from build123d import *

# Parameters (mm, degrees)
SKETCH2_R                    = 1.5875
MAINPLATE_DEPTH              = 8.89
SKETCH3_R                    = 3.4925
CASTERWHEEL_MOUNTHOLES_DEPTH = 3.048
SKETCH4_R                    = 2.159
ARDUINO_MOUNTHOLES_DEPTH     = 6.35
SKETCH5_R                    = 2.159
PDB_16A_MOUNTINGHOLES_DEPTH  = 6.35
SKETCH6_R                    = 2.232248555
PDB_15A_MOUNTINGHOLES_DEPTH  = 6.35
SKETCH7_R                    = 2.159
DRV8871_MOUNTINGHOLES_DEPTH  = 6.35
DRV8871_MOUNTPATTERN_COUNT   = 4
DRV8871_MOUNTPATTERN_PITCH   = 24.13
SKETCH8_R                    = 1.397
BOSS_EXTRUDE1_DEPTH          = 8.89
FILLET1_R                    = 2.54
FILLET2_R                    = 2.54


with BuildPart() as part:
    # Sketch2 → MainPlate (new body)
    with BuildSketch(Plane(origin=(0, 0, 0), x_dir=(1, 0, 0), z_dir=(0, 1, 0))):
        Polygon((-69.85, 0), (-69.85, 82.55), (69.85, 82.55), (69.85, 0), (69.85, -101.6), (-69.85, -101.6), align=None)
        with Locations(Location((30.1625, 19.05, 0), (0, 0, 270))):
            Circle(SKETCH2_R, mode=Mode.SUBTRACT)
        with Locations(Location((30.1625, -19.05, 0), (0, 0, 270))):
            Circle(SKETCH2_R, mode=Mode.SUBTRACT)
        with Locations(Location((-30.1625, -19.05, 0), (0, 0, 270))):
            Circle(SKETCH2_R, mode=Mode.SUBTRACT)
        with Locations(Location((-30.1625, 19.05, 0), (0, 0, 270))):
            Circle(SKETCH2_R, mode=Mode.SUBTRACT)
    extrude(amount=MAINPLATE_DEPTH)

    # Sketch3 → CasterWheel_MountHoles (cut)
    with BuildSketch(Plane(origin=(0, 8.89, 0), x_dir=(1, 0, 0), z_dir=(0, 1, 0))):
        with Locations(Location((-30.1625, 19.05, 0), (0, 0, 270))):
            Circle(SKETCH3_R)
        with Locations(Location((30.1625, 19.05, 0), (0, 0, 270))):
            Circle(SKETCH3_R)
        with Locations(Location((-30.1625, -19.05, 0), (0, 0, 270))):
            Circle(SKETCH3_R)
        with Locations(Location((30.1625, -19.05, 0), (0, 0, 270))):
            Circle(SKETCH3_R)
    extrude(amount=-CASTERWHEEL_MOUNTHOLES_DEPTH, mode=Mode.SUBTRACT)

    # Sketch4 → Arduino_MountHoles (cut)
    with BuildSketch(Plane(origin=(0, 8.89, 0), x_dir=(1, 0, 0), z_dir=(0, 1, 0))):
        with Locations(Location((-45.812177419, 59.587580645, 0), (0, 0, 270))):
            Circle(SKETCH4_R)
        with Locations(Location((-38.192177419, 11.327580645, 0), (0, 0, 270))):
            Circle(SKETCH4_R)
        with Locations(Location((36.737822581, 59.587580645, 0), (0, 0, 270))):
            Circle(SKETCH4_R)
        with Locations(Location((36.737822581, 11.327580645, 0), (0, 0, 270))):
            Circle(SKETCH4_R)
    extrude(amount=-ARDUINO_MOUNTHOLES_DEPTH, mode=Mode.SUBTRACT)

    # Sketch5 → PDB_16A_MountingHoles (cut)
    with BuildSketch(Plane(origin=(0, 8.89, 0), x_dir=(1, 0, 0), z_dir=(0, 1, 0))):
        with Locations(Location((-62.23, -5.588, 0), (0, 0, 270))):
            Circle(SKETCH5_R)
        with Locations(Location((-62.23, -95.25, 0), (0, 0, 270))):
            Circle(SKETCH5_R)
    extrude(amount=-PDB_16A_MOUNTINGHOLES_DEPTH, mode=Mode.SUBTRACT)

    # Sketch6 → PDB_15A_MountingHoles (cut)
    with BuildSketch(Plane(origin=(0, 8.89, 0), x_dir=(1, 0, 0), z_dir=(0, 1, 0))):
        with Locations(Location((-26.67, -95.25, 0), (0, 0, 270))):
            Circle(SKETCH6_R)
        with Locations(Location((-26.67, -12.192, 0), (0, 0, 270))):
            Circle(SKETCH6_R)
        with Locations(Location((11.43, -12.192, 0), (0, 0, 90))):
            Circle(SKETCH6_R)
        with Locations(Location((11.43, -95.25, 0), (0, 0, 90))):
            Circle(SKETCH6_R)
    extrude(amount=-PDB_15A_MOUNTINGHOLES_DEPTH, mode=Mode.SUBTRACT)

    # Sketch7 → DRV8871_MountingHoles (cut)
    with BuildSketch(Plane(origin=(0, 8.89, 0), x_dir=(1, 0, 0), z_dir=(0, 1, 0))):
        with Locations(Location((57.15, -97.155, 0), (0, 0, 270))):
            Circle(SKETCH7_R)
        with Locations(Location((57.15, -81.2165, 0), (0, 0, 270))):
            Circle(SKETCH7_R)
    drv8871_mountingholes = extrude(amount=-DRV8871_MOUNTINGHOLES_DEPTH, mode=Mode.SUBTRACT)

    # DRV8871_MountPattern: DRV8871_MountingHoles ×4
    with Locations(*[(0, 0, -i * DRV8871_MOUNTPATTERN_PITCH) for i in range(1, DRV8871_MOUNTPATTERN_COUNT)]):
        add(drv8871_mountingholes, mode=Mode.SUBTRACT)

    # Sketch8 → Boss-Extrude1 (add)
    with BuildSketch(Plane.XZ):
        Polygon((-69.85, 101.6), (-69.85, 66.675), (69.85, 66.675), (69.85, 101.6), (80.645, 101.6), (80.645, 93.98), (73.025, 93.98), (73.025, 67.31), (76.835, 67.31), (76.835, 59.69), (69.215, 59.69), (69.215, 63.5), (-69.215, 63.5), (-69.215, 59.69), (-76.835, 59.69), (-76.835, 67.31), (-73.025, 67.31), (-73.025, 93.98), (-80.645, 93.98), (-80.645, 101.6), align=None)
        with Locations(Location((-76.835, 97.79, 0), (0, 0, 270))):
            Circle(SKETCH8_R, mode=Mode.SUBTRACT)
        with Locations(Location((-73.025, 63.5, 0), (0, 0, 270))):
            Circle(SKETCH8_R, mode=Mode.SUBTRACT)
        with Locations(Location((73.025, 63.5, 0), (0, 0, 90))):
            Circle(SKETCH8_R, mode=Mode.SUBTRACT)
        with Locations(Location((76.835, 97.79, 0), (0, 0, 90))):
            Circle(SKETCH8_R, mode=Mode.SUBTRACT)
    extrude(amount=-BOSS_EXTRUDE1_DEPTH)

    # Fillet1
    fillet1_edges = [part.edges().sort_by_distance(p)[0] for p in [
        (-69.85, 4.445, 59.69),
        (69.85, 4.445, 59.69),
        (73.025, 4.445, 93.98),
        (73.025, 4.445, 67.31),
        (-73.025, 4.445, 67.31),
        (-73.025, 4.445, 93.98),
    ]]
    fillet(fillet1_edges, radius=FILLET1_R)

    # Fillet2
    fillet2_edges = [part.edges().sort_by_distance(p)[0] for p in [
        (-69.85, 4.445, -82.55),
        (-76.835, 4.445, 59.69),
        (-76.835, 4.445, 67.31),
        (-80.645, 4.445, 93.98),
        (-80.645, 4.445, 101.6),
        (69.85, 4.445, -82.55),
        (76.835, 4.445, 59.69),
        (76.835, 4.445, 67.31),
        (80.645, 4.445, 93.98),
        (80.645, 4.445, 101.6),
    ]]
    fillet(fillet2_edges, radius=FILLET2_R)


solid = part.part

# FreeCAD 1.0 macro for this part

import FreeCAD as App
import Part
import Sketcher
from FreeCAD import Vector
Q = App.Units.Quantity


def edges_at(feature, points):
    """Names of the edges that pass closest to the given points."""
    edges = feature.Shape.Edges
    near = lambda p: min(range(len(edges)), key=lambda i: edges[i].distToShape(Part.Vertex(*p))[0])
    return sorted({f"Edge{near(p) + 1}" for p in points})


def add_polygon(sketch, points):
    """Adds a closed chain of lines whose ends are joined by coincident constraints."""
    first, n = sketch.GeometryCount, len(points)
    for a, b in zip(points, points[1:] + points[:1]):
        sketch.addGeometry(Part.LineSegment(App.Vector(*a, 0), App.Vector(*b, 0)), False)
    for i in range(n):
        sketch.addConstraint(Sketcher.Constraint("Coincident", first + i, 2, first + (i + 1) % n, 1))

doc = App.newDocument("Part")
params = doc.addObject("Spreadsheet::Sheet", "Params")
for row, (alias, value) in enumerate([
    ("sketch1_diameter", "0.125 in"),
    ("sketch1_width", "5.5 in"),
    ("sketch1_height", "7.25 in"),
    ("pad1_length", "0.35 in"),
    ("sketch2_diameter", "0.275 in"),
    ("pocket1_length", "0.12 in"),
    ("sketch3_diameter", "0.17 in"),
    ("pocket2_length", "0.25 in"),
    ("sketch4_diameter", "0.17 in"),
    ("pocket3_length", "0.25 in"),
    ("pocket4_length", "0.25 in"),
    ("sketch6_diameter", "0.17 in"),
    ("pocket5_length", "0.25 in"),
    ("linearpattern_pitch", "0.95 in"),
    ("sketch7_diameter", "0.11 in"),
    ("sketch7_width", "0.3 in"),
    ("sketch7_width2", "5.5 in"),
    ("sketch7_width3", "0.15 in"),
    ("sketch7_width4", "5.45 in"),
    ("pad2_length", "0.35 in"),
    ("fillet_radius", "0.1 in"),
    ("fillet2_radius", "0.1 in"),
], start=1):
    params.set(f"A{row}", alias)
    params.set(f"B{row}", "=" + value)
    params.setAlias(f"B{row}", alias)

body = doc.addObject("PartDesign::Body", "Body")

sketch1 = doc.addObject("Sketcher::SketchObject", "Sketch")
body.addObject(sketch1)
sketch1.AttachmentSupport = (doc.XZ_Plane, [""])
sketch1.MapMode = "FlatFace"
add_polygon(sketch1, [(-69.8, -82.5), (-69.8, 101.6), (69.8, 101.6), (69.8, -82.5)])
sketch1.addGeometry(Part.Circle(Vector(30.2, 19.1, 0), Vector(0, 0, 1), 1.6), False)
sketch1.addGeometry(Part.Circle(Vector(-30.2, 19.1, 0), Vector(0, 0, 1), 1.6), False)
sketch1.addGeometry(Part.Circle(Vector(30.2, -19.1, 0), Vector(0, 0, 1), 1.6), False)
sketch1.addGeometry(Part.Circle(Vector(-30.2, -19.1, 0), Vector(0, 0, 1), 1.6), False)
sketch1.addConstraint(Sketcher.Constraint("Vertical", 0))
sketch1.addConstraint(Sketcher.Constraint("Horizontal", 1))
sketch1.addConstraint(Sketcher.Constraint("Vertical", 2))
sketch1.addConstraint(Sketcher.Constraint("Horizontal", 3))
sketch1.addConstraint(Sketcher.Constraint("Equal", 4, 5))
sketch1.addConstraint(Sketcher.Constraint("Equal", 5, 6))
sketch1.addConstraint(Sketcher.Constraint("Equal", 6, 7))
sketch1.addConstraint(Sketcher.Constraint("Symmetric", 5, 3, 6, 3, -1, 1))
sketch1.addConstraint(Sketcher.Constraint("Symmetric", 4, 3, 7, 3, -1, 1))
sketch1.addConstraint(Sketcher.Constraint("Symmetric", 4, 3, 5, 3, -2))
sketch1.addConstraint(Sketcher.Constraint("Diameter", 4, Q("0.125 in")))
sketch1.addConstraint(Sketcher.Constraint("DistanceX", 1, 1, 1, 2, Q("5.5 in")))
sketch1.addConstraint(Sketcher.Constraint("DistanceY", -1, 1, 0, 2, Q("4 in")))
sketch1.addConstraint(Sketcher.Constraint("DistanceY", 2, 2, 4, 3, Q("4 in")))
sketch1.addConstraint(Sketcher.Constraint("DistanceY", 0, 1, 0, 2, Q("7.25 in")))
sketch1.addConstraint(Sketcher.Constraint("DistanceX", 0, 2, -1, 1, Q("2.75 in")))
sketch1.addConstraint(Sketcher.Constraint("DistanceX", -1, 1, 4, 3, Q("1.1875 in")))
sketch1.setExpression("Constraints[14]", "Params.sketch1_diameter")
sketch1.setExpression("Constraints[15]", "Params.sketch1_width")
sketch1.setExpression("Constraints[18]", "Params.sketch1_height")
pad1 = doc.addObject("PartDesign::Pad", "Pad")
body.addObject(pad1)
pad1.Profile = sketch1
pad1.setExpression("Length", "Params.pad1_length")
pad1.Reversed = True

sketch2 = doc.addObject("Sketcher::SketchObject", "Sketch001")
body.addObject(sketch2)
sketch2.AttachmentSupport = (doc.XZ_Plane, [""])
sketch2.MapMode = "FlatFace"
sketch2.AttachmentOffset = App.Placement(Vector(0, 0, -0.35 * 25.4), App.Rotation())
sketch2.addGeometry(Part.Circle(Vector(-30.2, -19.1, 0), Vector(0, 0, 1), 3.5), False)
sketch2.addGeometry(Part.Circle(Vector(30.2, -19.1, 0), Vector(0, 0, 1), 3.5), False)
sketch2.addGeometry(Part.Circle(Vector(-30.2, 19.1, 0), Vector(0, 0, 1), 3.5), False)
sketch2.addGeometry(Part.Circle(Vector(30.2, 19.1, 0), Vector(0, 0, 1), 3.5), False)
sketch2.addConstraint(Sketcher.Constraint("Equal", 0, 1))
sketch2.addConstraint(Sketcher.Constraint("Equal", 1, 2))
sketch2.addConstraint(Sketcher.Constraint("Equal", 2, 3))
sketch2.addConstraint(Sketcher.Constraint("Symmetric", 1, 3, 2, 3, -1, 1))
sketch2.addConstraint(Sketcher.Constraint("Symmetric", 0, 3, 3, 3, -1, 1))
sketch2.addConstraint(Sketcher.Constraint("Symmetric", 0, 3, 1, 3, -2))
sketch2.addConstraint(Sketcher.Constraint("Diameter", 0, Q("0.275 in")))
sketch2.addConstraint(Sketcher.Constraint("DistanceY", 0, 3, 2, 3, Q("1.5 in")))
sketch2.addConstraint(Sketcher.Constraint("DistanceX", 0, 3, -1, 1, Q("1.1875 in")))
sketch2.setExpression("Constraints[6]", "Params.sketch2_diameter")
pocket1 = doc.addObject("PartDesign::Pocket", "Pocket")
body.addObject(pocket1)
pocket1.Profile = sketch2
pocket1.setExpression("Length", "Params.pocket1_length")
pocket1.Reversed = True

sketch3 = doc.addObject("Sketcher::SketchObject", "Sketch002")
body.addObject(sketch3)
sketch3.AttachmentSupport = (doc.XZ_Plane, [""])
sketch3.MapMode = "FlatFace"
sketch3.AttachmentOffset = App.Placement(Vector(0, 0, -0.35 * 25.4), App.Rotation())
sketch3.addGeometry(Part.Circle(Vector(-45.8, -59.6, 0), Vector(0, 0, 1), 2.2), False)
sketch3.addGeometry(Part.Circle(Vector(-38.2, -11.3, 0), Vector(0, 0, 1), 2.2), False)
sketch3.addGeometry(Part.Circle(Vector(36.7, -59.6, 0), Vector(0, 0, 1), 2.2), False)
sketch3.addGeometry(Part.Circle(Vector(36.7, -11.3, 0), Vector(0, 0, 1), 2.2), False)
sketch3.addConstraint(Sketcher.Constraint("Equal", 0, 1))
sketch3.addConstraint(Sketcher.Constraint("Equal", 1, 2))
sketch3.addConstraint(Sketcher.Constraint("Equal", 2, 3))
sketch3.addConstraint(Sketcher.Constraint("Horizontal", 0, 3, 2, 3))
sketch3.addConstraint(Sketcher.Constraint("Horizontal", 1, 3, 3, 3))
sketch3.addConstraint(Sketcher.Constraint("Vertical", 2, 3, 3, 3))
sketch3.addConstraint(Sketcher.Constraint("Diameter", 0, Q("0.17 in")))
sketch3.addConstraint(Sketcher.Constraint("DistanceX", 0, 3, 1, 3, Q("0.3 in")))
sketch3.addConstraint(Sketcher.Constraint("DistanceY", 0, 3, 1, 3, Q("1.9 in")))
sketch3.addConstraint(Sketcher.Constraint("DistanceX", 0, 3, 2, 3, Q("3.25 in")))
sketch3.addConstraint(Sketcher.Constraint("DistanceY", 0, 3, -1, 1, 59.587581))
sketch3.addConstraint(Sketcher.Constraint("DistanceX", 0, 3, -1, 1, 45.812177))
sketch3.setExpression("Constraints[6]", "Params.sketch3_diameter")
pocket2 = doc.addObject("PartDesign::Pocket", "Pocket001")
body.addObject(pocket2)
pocket2.Profile = sketch3
pocket2.setExpression("Length", "Params.pocket2_length")
pocket2.Reversed = True

sketch4 = doc.addObject("Sketcher::SketchObject", "Sketch003")
body.addObject(sketch4)
sketch4.AttachmentSupport = (doc.XZ_Plane, [""])
sketch4.MapMode = "FlatFace"
sketch4.AttachmentOffset = App.Placement(Vector(0, 0, -0.35 * 25.4), App.Rotation())
sketch4.addGeometry(Part.Circle(Vector(-62.2, 5.6, 0), Vector(0, 0, 1), 2.2), False)
sketch4.addGeometry(Part.Circle(Vector(-62.2, 95.2, 0), Vector(0, 0, 1), 2.2), False)
sketch4.addConstraint(Sketcher.Constraint("Equal", 0, 1))
sketch4.addConstraint(Sketcher.Constraint("Vertical", 0, 3, 1, 3))
sketch4.addConstraint(Sketcher.Constraint("Diameter", 0, Q("0.17 in")))
sketch4.addConstraint(Sketcher.Constraint("DistanceX", 0, 3, -1, 1, Q("2.45 in")))
sketch4.addConstraint(Sketcher.Constraint("DistanceY", -1, 1, 0, 3, Q("0.22 in")))
sketch4.addConstraint(Sketcher.Constraint("DistanceY", -1, 1, 1, 3, Q("3.75 in")))
sketch4.setExpression("Constraints[2]", "Params.sketch4_diameter")
pocket3 = doc.addObject("PartDesign::Pocket", "Pocket002")
body.addObject(pocket3)
pocket3.Profile = sketch4
pocket3.setExpression("Length", "Params.pocket3_length")
pocket3.Reversed = True

sketch5 = doc.addObject("Sketcher::SketchObject", "Sketch004")
body.addObject(sketch5)
sketch5.AttachmentSupport = (doc.XZ_Plane, [""])
sketch5.MapMode = "FlatFace"
sketch5.AttachmentOffset = App.Placement(Vector(0, 0, -0.35 * 25.4), App.Rotation())
sketch5.addGeometry(Part.Circle(Vector(-26.7, 95.2, 0), Vector(0, 0, 1), 2.2), False)
sketch5.addGeometry(Part.Circle(Vector(-26.7, 12.2, 0), Vector(0, 0, 1), 2.2), False)
sketch5.addGeometry(Part.Circle(Vector(11.4, 12.2, 0), Vector(0, 0, 1), 2.2), False)
sketch5.addGeometry(Part.Circle(Vector(11.4, 95.2, 0), Vector(0, 0, 1), 2.2), False)
sketch5.addConstraint(Sketcher.Constraint("Equal", 0, 1))
sketch5.addConstraint(Sketcher.Constraint("Equal", 1, 2))
sketch5.addConstraint(Sketcher.Constraint("Equal", 2, 3))
sketch5.addConstraint(Sketcher.Constraint("Horizontal", 1, 3, 2, 3))
sketch5.addConstraint(Sketcher.Constraint("Horizontal", 0, 3, 3, 3))
sketch5.addConstraint(Sketcher.Constraint("Vertical", 0, 3, 1, 3))
sketch5.addConstraint(Sketcher.Constraint("Vertical", 2, 3, 3, 3))
sketch5.addConstraint(Sketcher.Constraint("DistanceX", 1, 3, 2, 3, Q("1.5 in")))
sketch5.addConstraint(Sketcher.Constraint("DistanceX", 0, 3, -1, 1, Q("1.05 in")))
sketch5.addConstraint(Sketcher.Constraint("DistanceY", -1, 1, 0, 3, Q("3.75 in")))
sketch5.addConstraint(Sketcher.Constraint("DistanceY", -1, 1, 1, 3, Q("0.48 in")))
sketch5.addConstraint(Sketcher.Constraint("Diameter", 0, 4.464497))
pocket4 = doc.addObject("PartDesign::Pocket", "Pocket003")
body.addObject(pocket4)
pocket4.Profile = sketch5
pocket4.setExpression("Length", "Params.pocket4_length")
pocket4.Reversed = True

sketch6 = doc.addObject("Sketcher::SketchObject", "Sketch005")
body.addObject(sketch6)
sketch6.AttachmentSupport = (doc.XZ_Plane, [""])
sketch6.MapMode = "FlatFace"
sketch6.AttachmentOffset = App.Placement(Vector(0, 0, -0.35 * 25.4), App.Rotation())
sketch6.addGeometry(Part.Circle(Vector(57.1, 97.2, 0), Vector(0, 0, 1), 2.2), False)
sketch6.addGeometry(Part.Circle(Vector(57.1, 81.2, 0), Vector(0, 0, 1), 2.2), False)
sketch6.addConstraint(Sketcher.Constraint("Equal", 0, 1))
sketch6.addConstraint(Sketcher.Constraint("Vertical", 0, 3, 1, 3))
sketch6.addConstraint(Sketcher.Constraint("Diameter", 0, Q("0.17 in")))
sketch6.addConstraint(Sketcher.Constraint("DistanceX", -1, 1, 0, 3, Q("2.25 in")))
sketch6.addConstraint(Sketcher.Constraint("DistanceY", -1, 1, 0, 3, Q("3.825 in")))
sketch6.addConstraint(Sketcher.Constraint("DistanceY", -1, 1, 1, 3, Q("3.1975 in")))
sketch6.setExpression("Constraints[2]", "Params.sketch6_diameter")
pocket5 = doc.addObject("PartDesign::Pocket", "Pocket004")
body.addObject(pocket5)
pocket5.Profile = sketch6
pocket5.setExpression("Length", "Params.pocket5_length")
pocket5.Reversed = True
doc.recompute()

linearpattern = doc.addObject("PartDesign::LinearPattern", "LinearPattern")
body.addObject(linearpattern)
linearpattern.Originals = [pocket5]
linearpattern.Direction = (doc.Z_Axis, [""])
linearpattern.Mode = "offset"
linearpattern.setExpression("Offset", "Params.linearpattern_pitch")
linearpattern.Occurrences = 4
linearpattern.Reversed = True
body.Tip = linearpattern

sketch7 = doc.addObject("Sketcher::SketchObject", "Sketch006")
body.addObject(sketch7)
sketch7.AttachmentSupport = (doc.XZ_Plane, [""])
sketch7.MapMode = "FlatFace"
add_polygon(sketch7, [(-69.8, 66.7), (-69.8, 101.6), (-80.6, 101.6), (-80.6, 94), (-73, 94), (-73, 67.3), (-76.8, 67.3), (-76.8, 59.7), (-69.2, 59.7), (-69.2, 63.5), (69.2, 63.5), (69.2, 59.7), (76.8, 59.7), (76.8, 67.3), (73, 67.3), (73, 94), (80.6, 94), (80.6, 101.6), (69.8, 101.6), (69.8, 66.7)])
sketch7.addGeometry(Part.Circle(Vector(73, 63.5, 0), Vector(0, 0, 1), 1.4), False)
sketch7.addGeometry(Part.Circle(Vector(-73, 63.5, 0), Vector(0, 0, 1), 1.4), False)
sketch7.addGeometry(Part.Circle(Vector(76.8, 97.8, 0), Vector(0, 0, 1), 1.4), False)
sketch7.addGeometry(Part.Circle(Vector(-76.8, 97.8, 0), Vector(0, 0, 1), 1.4), False)
sketch7.addConstraint(Sketcher.Constraint("Vertical", 0))
sketch7.addConstraint(Sketcher.Constraint("Horizontal", 1))
sketch7.addConstraint(Sketcher.Constraint("Vertical", 2))
sketch7.addConstraint(Sketcher.Constraint("Horizontal", 3))
sketch7.addConstraint(Sketcher.Constraint("Vertical", 4))
sketch7.addConstraint(Sketcher.Constraint("Horizontal", 5))
sketch7.addConstraint(Sketcher.Constraint("Vertical", 6))
sketch7.addConstraint(Sketcher.Constraint("Horizontal", 7))
sketch7.addConstraint(Sketcher.Constraint("Vertical", 8))
sketch7.addConstraint(Sketcher.Constraint("Horizontal", 9))
sketch7.addConstraint(Sketcher.Constraint("Vertical", 10))
sketch7.addConstraint(Sketcher.Constraint("Horizontal", 11))
sketch7.addConstraint(Sketcher.Constraint("Vertical", 12))
sketch7.addConstraint(Sketcher.Constraint("Horizontal", 13))
sketch7.addConstraint(Sketcher.Constraint("Vertical", 14))
sketch7.addConstraint(Sketcher.Constraint("Horizontal", 15))
sketch7.addConstraint(Sketcher.Constraint("Vertical", 16))
sketch7.addConstraint(Sketcher.Constraint("Horizontal", 17))
sketch7.addConstraint(Sketcher.Constraint("Vertical", 18))
sketch7.addConstraint(Sketcher.Constraint("Horizontal", 19))
sketch7.addConstraint(Sketcher.Constraint("Equal", 20, 21))
sketch7.addConstraint(Sketcher.Constraint("Equal", 21, 22))
sketch7.addConstraint(Sketcher.Constraint("Equal", 22, 23))
sketch7.addConstraint(Sketcher.Constraint("Symmetric", 20, 3, 21, 3, -2))
sketch7.addConstraint(Sketcher.Constraint("Symmetric", 22, 3, 23, 3, -2))
sketch7.addConstraint(Sketcher.Constraint("Symmetric", 7, 2, 10, 2, -2))
sketch7.addConstraint(Sketcher.Constraint("Symmetric", 5, 2, 12, 2, -2))
sketch7.addConstraint(Sketcher.Constraint("Symmetric", 3, 2, 14, 2, -2))
sketch7.addConstraint(Sketcher.Constraint("Symmetric", 1, 2, 16, 2, -2))
sketch7.addConstraint(Sketcher.Constraint("Horizontal", 21, 3, 8, 2))
sketch7.addConstraint(Sketcher.Constraint("Vertical", 21, 3, 3, 2))
sketch7.addConstraint(Sketcher.Constraint("Vertical", 23, 3, 5, 2))
sketch7.addConstraint(Sketcher.Constraint("Equal", 3, 7))
sketch7.addConstraint(Sketcher.Constraint("Equal", 1, 17))
sketch7.addConstraint(Sketcher.Constraint("Equal", 15, 2))
sketch7.addConstraint(Sketcher.Constraint("Equal", 2, 6))
sketch7.addConstraint(Sketcher.Constraint("Equal", 13, 8))
sketch7.addConstraint(Sketcher.Constraint("Diameter", 20, Q("0.11 in")))
sketch7.addConstraint(Sketcher.Constraint("DistanceX", 3, 1, 3, 2, Q("0.3 in")))
sketch7.addConstraint(Sketcher.Constraint("DistanceX", 19, 2, 19, 1, Q("5.5 in")))
sketch7.addConstraint(Sketcher.Constraint("DistanceY", -1, 1, 0, 2, Q("4 in")))
sketch7.addConstraint(Sketcher.Constraint("DistanceX", 5, 2, 5, 1, Q("0.15 in")))
sketch7.addConstraint(Sketcher.Constraint("DistanceX", 9, 1, 9, 2, Q("5.45 in")))
sketch7.addConstraint(Sketcher.Constraint("DistanceY", 4, 2, 4, 1, Q("1.05 in")))
sketch7.addConstraint(Sketcher.Constraint("DistanceY", 4, 2, 23, 3, Q("1.2 in")))
sketch7.addConstraint(Sketcher.Constraint("DistanceY", 0, 1, 0, 2, Q("1.375 in")))
sketch7.setExpression("Constraints[57]", "Params.sketch7_diameter")
sketch7.setExpression("Constraints[58]", "Params.sketch7_width")
sketch7.setExpression("Constraints[59]", "Params.sketch7_width2")
sketch7.setExpression("Constraints[61]", "Params.sketch7_width3")
sketch7.setExpression("Constraints[62]", "Params.sketch7_width4")
pad2 = doc.addObject("PartDesign::Pad", "Pad001")
body.addObject(pad2)
pad2.Profile = sketch7
pad2.setExpression("Length", "Params.pad2_length")
pad2.Reversed = True
doc.recompute()

fillet = doc.addObject("PartDesign::Fillet", "Fillet")
body.addObject(fillet)
fillet.Base = (pad2, edges_at(pad2, [
    (-69.85, 4.445, 59.69),
    (69.85, 4.445, 59.69),
    (73.025, 4.445, 93.98),
    (73.025, 4.445, 67.31),
    (-73.025, 4.445, 67.31),
    (-73.025, 4.445, 93.98),
]))
fillet.setExpression("Radius", "Params.fillet_radius")
doc.recompute()

fillet2 = doc.addObject("PartDesign::Fillet", "Fillet001")
body.addObject(fillet2)
fillet2.Base = (fillet, edges_at(fillet, [
    (-69.85, 4.445, -82.55),
    (-76.835, 4.445, 59.69),
    (-76.835, 4.445, 67.31),
    (-80.645, 4.445, 93.98),
    (-80.645, 4.445, 101.6),
    (69.85, 4.445, -82.55),
    (76.835, 4.445, 59.69),
    (76.835, 4.445, 67.31),
    (80.645, 4.445, 93.98),
    (80.645, 4.445, 101.6),
]))
fillet2.setExpression("Radius", "Params.fillet2_radius")

doc.recompute()
